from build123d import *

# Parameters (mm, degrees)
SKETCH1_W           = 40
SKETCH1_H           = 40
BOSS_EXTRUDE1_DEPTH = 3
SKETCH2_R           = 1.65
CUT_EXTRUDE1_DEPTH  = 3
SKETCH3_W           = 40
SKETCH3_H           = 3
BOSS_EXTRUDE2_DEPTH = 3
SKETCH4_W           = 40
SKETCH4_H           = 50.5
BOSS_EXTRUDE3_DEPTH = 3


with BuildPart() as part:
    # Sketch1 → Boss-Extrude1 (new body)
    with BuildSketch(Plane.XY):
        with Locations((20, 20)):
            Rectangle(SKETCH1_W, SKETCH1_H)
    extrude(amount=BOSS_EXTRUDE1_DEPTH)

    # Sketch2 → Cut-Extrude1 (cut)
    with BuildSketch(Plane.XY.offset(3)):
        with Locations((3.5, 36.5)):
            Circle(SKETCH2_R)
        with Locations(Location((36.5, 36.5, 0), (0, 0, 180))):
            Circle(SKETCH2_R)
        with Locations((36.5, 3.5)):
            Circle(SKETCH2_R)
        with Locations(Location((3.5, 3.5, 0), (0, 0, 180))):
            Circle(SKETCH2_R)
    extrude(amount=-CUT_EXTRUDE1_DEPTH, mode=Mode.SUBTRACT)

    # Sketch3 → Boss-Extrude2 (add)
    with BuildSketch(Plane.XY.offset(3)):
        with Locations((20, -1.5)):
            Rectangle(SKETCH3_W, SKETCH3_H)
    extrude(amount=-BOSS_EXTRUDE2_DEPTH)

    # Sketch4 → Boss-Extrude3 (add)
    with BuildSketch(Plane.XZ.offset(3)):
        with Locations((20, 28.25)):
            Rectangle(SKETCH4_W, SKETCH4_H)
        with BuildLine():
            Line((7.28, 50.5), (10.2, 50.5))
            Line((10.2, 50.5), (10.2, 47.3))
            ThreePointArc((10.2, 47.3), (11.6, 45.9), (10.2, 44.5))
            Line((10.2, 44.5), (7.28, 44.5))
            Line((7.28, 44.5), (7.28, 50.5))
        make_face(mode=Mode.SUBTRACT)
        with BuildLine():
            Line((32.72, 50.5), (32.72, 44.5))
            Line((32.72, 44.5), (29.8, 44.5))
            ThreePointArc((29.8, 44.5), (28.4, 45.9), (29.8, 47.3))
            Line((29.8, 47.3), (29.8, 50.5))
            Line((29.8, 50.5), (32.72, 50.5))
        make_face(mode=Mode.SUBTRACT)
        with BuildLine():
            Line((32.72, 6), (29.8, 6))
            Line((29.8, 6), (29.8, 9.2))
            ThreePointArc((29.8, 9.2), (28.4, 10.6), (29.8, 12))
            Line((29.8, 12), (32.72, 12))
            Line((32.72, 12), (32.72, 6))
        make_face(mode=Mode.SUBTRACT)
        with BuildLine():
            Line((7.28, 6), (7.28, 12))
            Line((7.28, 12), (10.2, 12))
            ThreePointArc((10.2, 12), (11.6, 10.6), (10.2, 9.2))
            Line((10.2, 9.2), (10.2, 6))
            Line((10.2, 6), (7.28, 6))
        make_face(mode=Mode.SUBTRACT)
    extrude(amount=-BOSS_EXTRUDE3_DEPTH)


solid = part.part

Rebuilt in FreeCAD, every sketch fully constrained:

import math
import FreeCAD as App
import Part
import Sketcher

V = App.Vector
Q = App.Units.Quantity

doc = App.newDocument("Part")
body = doc.addObject("PartDesign::Body", "Body")

# Sketch on XY plane
sketch1 = body.newObject("Sketcher::SketchObject", "Sketch")
sketch1.AttachmentSupport = (doc.getObject("XY_Plane"), [""])
sketch1.MapMode = "FlatFace"
sketch1.addGeometry(Part.LineSegment(V(0, 40, 0), V(0, 0, 0)), False)
sketch1.addGeometry(Part.LineSegment(V(0, 0, 0), V(40, 0, 0)), False)
sketch1.addGeometry(Part.LineSegment(V(40, 0, 0), V(40, 40, 0)), False)
sketch1.addGeometry(Part.LineSegment(V(40, 40, 0), V(0, 40, 0)), False)
sketch1.addConstraint(Sketcher.Constraint("Coincident", 0, 2, 1, 1))
sketch1.addConstraint(Sketcher.Constraint("Coincident", 1, 2, 2, 1))
sketch1.addConstraint(Sketcher.Constraint("Coincident", 2, 2, 3, 1))
sketch1.addConstraint(Sketcher.Constraint("Coincident", 3, 2, 0, 1))
sketch1.addConstraint(Sketcher.Constraint("Vertical", 0))
sketch1.addConstraint(Sketcher.Constraint("Horizontal", 1))
sketch1.addConstraint(Sketcher.Constraint("Vertical", 2))
sketch1.addConstraint(Sketcher.Constraint("Horizontal", 3))
sketch1.addConstraint(Sketcher.Constraint("Coincident", 0, 2, -1, 1))
sketch1.addConstraint(Sketcher.Constraint("Equal", 3, 0))
sketch1.addConstraint(Sketcher.Constraint("DistanceX", 1, 1, 1, 2, Q("40 mm")))
pad1 = body.newObject("PartDesign::Pad", "Pad")
pad1.Profile = sketch1
pad1.Length = 3

# Sketch on XY plane
sketch2 = body.newObject("Sketcher::SketchObject", "Sketch001")
sketch2.AttachmentSupport = (doc.getObject("XY_Plane"), [""])
sketch2.MapMode = "FlatFace"
sketch2.AttachmentOffset = App.Placement(V(0, 0, 3), App.Rotation())
sketch2.addGeometry(Part.Circle(V(3.5, 36.5, 0), V(0, 0, 1), 1.65), False)
sketch2.addGeometry(Part.Circle(V(36.5, 36.5, 0), V(0, 0, 1), 1.65), False)
sketch2.addGeometry(Part.Circle(V(36.5, 3.5, 0), V(0, 0, 1), 1.65), False)
sketch2.addGeometry(Part.Circle(V(3.5, 3.5, 0), V(0, 0, 1), 1.65), False)
sketch2.addConstraint(Sketcher.Constraint("Equal", 0, 1))
sketch2.addConstraint(Sketcher.Constraint("Equal", 1, 2))
sketch2.addConstraint(Sketcher.Constraint("Equal", 2, 3))
sketch2.addConstraint(Sketcher.Constraint("Horizontal", 0, 3, 1, 3))
sketch2.addConstraint(Sketcher.Constraint("Horizontal", 2, 3, 3, 3))
sketch2.addConstraint(Sketcher.Constraint("Vertical", 1, 3, 2, 3))
sketch2.addConstraint(Sketcher.Constraint("Vertical", 0, 3, 3, 3))
sketch2.addConstraint(Sketcher.Constraint("Diameter", 0, Q("3.3 mm")))
sketch2.addConstraint(Sketcher.Constraint("DistanceX", 0, 3, 1, 3, Q("33 mm")))
sketch2.addConstraint(Sketcher.Constraint("DistanceY", 2, 3, 1, 3, Q("33 mm")))
sketch2.addConstraint(Sketcher.Constraint("DistanceX", -1, 1, 0, 3, Q("3.5 mm")))
sketch2.addConstraint(Sketcher.Constraint("DistanceY", -1, 1, 0, 3, Q("36.5 mm")))
pocket1 = body.newObject("PartDesign::Pocket", "Pocket")
pocket1.Profile = sketch2
pocket1.Length = 3

# Sketch on XY plane
sketch3 = body.newObject("Sketcher::SketchObject", "Sketch002")
sketch3.AttachmentSupport = (doc.getObject("XY_Plane"), [""])
sketch3.MapMode = "FlatFace"
sketch3.AttachmentOffset = App.Placement(V(0, 0, 3), App.Rotation())
sketch3.addGeometry(Part.LineSegment(V(0, 0, 0), V(0, -3, 0)), False)
sketch3.addGeometry(Part.LineSegment(V(0, -3, 0), V(40, -3, 0)), False)
sketch3.addGeometry(Part.LineSegment(V(40, -3, 0), V(40, 0, 0)), False)
sketch3.addGeometry(Part.LineSegment(V(40, 0, 0), V(0, 0, 0)), False)
sketch3.addConstraint(Sketcher.Constraint("Coincident", 0, 2, 1, 1))
sketch3.addConstraint(Sketcher.Constraint("Coincident", 1, 2, 2, 1))
sketch3.addConstraint(Sketcher.Constraint("Coincident", 2, 2, 3, 1))
sketch3.addConstraint(Sketcher.Constraint("Coincident", 3, 2, 0, 1))
sketch3.addConstraint(Sketcher.Constraint("Vertical", 0))
sketch3.addConstraint(Sketcher.Constraint("Horizontal", 1))
sketch3.addConstraint(Sketcher.Constraint("Vertical", 2))
sketch3.addConstraint(Sketcher.Constraint("Horizontal", 3))
sketch3.addConstraint(Sketcher.Constraint("Coincident", 3, 2, -1, 1))
sketch3.addConstraint(Sketcher.Constraint("DistanceX", 1, 1, 1, 2, Q("40 mm")))
sketch3.addConstraint(Sketcher.Constraint("DistanceY", 0, 2, 0, 1, Q("3 mm")))
pad2 = body.newObject("PartDesign::Pad", "Pad001")
pad2.Profile = sketch3
pad2.Length = 3
pad2.Reversed = True

# Sketch on XZ plane
sketch4 = body.newObject("Sketcher::SketchObject", "Sketch003")
sketch4.AttachmentSupport = (doc.getObject("XZ_Plane"), [""])
sketch4.MapMode = "FlatFace"
sketch4.AttachmentOffset = App.Placement(V(0, 0, 3), App.Rotation())
sketch4.addGeometry(Part.LineSegment(V(0, 53.5, 0), V(0, 3, 0)), False)
sketch4.addGeometry(Part.LineSegment(V(0, 3, 0), V(40, 3, 0)), False)
sketch4.addGeometry(Part.LineSegment(V(40, 3, 0), V(40, 53.5, 0)), False)
sketch4.addGeometry(Part.LineSegment(V(40, 53.5, 0), V(0, 53.5, 0)), False)
sketch4.addGeometry(Part.LineSegment(V(10.2, 6, 0), V(7.28, 6, 0)), False)
sketch4.addGeometry(Part.LineSegment(V(7.28, 6, 0), V(7.28, 12, 0)), False)
sketch4.addGeometry(Part.LineSegment(V(7.28, 12, 0), V(10.2, 12, 0)), False)
sketch4.addGeometry(Part.ArcOfCircle(Part.Circle(V(10.2, 10.6, 0), V(0, 0, 1), 1.4), math.radians(-90), math.radians(90)), False)
sketch4.addGeometry(Part.LineSegment(V(10.2, 9.2, 0), V(10.2, 6, 0)), False)
sketch4.addGeometry(Part.LineSegment(V(32.72, 12, 0), V(32.72, 6, 0)), False)
sketch4.addGeometry(Part.LineSegment(V(32.72, 6, 0), V(29.8, 6, 0)), False)
sketch4.addGeometry(Part.LineSegment(V(29.8, 6, 0), V(29.8, 9.2, 0)), False)
sketch4.addGeometry(Part.ArcOfCircle(Part.Circle(V(29.8, 10.6, 0), V(0, 0, 1), 1.4), math.radians(90), math.radians(270)), False)
sketch4.addGeometry(Part.LineSegment(V(29.8, 12, 0), V(32.72, 12, 0)), False)
sketch4.addGeometry(Part.LineSegment(V(7.28, 44.5, 0), V(7.28, 50.5, 0)), False)
sketch4.addGeometry(Part.LineSegment(V(7.28, 50.5, 0), V(10.2, 50.5, 0)), False)
sketch4.addGeometry(Part.LineSegment(V(10.2, 50.5, 0), V(10.2, 47.3, 0)), False)
sketch4.addGeometry(Part.ArcOfCircle(Part.Circle(V(10.2, 45.9, 0), V(0, 0, 1), 1.4), math.radians(-90), math.radians(90)), False)
sketch4.addGeometry(Part.LineSegment(V(10.2, 44.5, 0), V(7.28, 44.5, 0)), False)
sketch4.addGeometry(Part.LineSegment(V(29.8, 50.5, 0), V(32.72, 50.5, 0)), False)
sketch4.addGeometry(Part.LineSegment(V(32.72, 50.5, 0), V(32.72, 44.5, 0)), False)
sketch4.addGeometry(Part.LineSegment(V(32.72, 44.5, 0), V(29.8, 44.5, 0)), False)
sketch4.addGeometry(Part.ArcOfCircle(Part.Circle(V(29.8, 45.9, 0), V(0, 0, 1), 1.4), math.radians(90), math.radians(270)), False)
sketch4.addGeometry(Part.LineSegment(V(29.8, 47.3, 0), V(29.8, 50.5, 0)), False)
sketch4.addConstraint(Sketcher.Constraint("Coincident", 0, 2, 1, 1))
sketch4.addConstraint(Sketcher.Constraint("Coincident", 1, 2, 2, 1))
sketch4.addConstraint(Sketcher.Constraint("Coincident", 2, 2, 3, 1))
sketch4.addConstraint(Sketcher.Constraint("Coincident", 3, 2, 0, 1))
sketch4.addConstraint(Sketcher.Constraint("Coincident", 4, 2, 5, 1))
sketch4.addConstraint(Sketcher.Constraint("Coincident", 5, 2, 6, 1))
sketch4.addConstraint(Sketcher.Constraint("Tangent", 6, 2, 7, 2))
sketch4.addConstraint(Sketcher.Constraint("Coincident", 7, 1, 8, 1))
sketch4.addConstraint(Sketcher.Constraint("Coincident", 8, 2, 4, 1))
sketch4.addConstraint(Sketcher.Constraint("Coincident", 9, 2, 10, 1))
sketch4.addConstraint(Sketcher.Constraint("Coincident", 10, 2, 11, 1))
sketch4.addConstraint(Sketcher.Constraint("Coincident", 11, 2, 12, 2))
sketch4.addConstraint(Sketcher.Constraint("Tangent", 12, 1, 13, 1))
sketch4.addConstraint(Sketcher.Constraint("Coincident", 13, 2, 9, 1))
sketch4.addConstraint(Sketcher.Constraint("Coincident", 14, 2, 15, 1))
sketch4.addConstraint(Sketcher.Constraint("Coincident", 15, 2, 16, 1))
sketch4.addConstraint(Sketcher.Constraint("Coincident", 16, 2, 17, 2))
sketch4.addConstraint(Sketcher.Constraint("Tangent", 17, 1, 18, 1))
sketch4.addConstraint(Sketcher.Constraint("Coincident", 18, 2, 14, 1))
sketch4.addConstraint(Sketcher.Constraint("Coincident", 19, 2, 20, 1))
sketch4.addConstraint(Sketcher.Constraint("Coincident", 20, 2, 21, 1))
sketch4.addConstraint(Sketcher.Constraint("Tangent", 21, 2, 22, 2))
sketch4.addConstraint(Sketcher.Constraint("Coincident", 22, 1, 23, 1))
sketch4.addConstraint(Sketcher.Constraint("Coincident", 23, 2, 19, 1))
sketch4.addConstraint(Sketcher.Constraint("Vertical", 0))
sketch4.addConstraint(Sketcher.Constraint("Horizontal", 1))
sketch4.addConstraint(Sketcher.Constraint("Vertical", 2))
sketch4.addConstraint(Sketcher.Constraint("Horizontal", 3))
sketch4.addConstraint(Sketcher.Constraint("Horizontal", 4))
sketch4.addConstraint(Sketcher.Constraint("Vertical", 5))
sketch4.addConstraint(Sketcher.Constraint("Horizontal", 6))
sketch4.addConstraint(Sketcher.Constraint("Vertical", 8))
sketch4.addConstraint(Sketcher.Constraint("Vertical", 9))
sketch4.addConstraint(Sketcher.Constraint("Horizontal", 10))
sketch4.addConstraint(Sketcher.Constraint("Vertical", 11))
sketch4.addConstraint(Sketcher.Constraint("Horizontal", 13))
sketch4.addConstraint(Sketcher.Constraint("Vertical", 14))
sketch4.addConstraint(Sketcher.Constraint("Horizontal", 15))
sketch4.addConstraint(Sketcher.Constraint("Vertical", 16))
sketch4.addConstraint(Sketcher.Constraint("Horizontal", 18))
sketch4.addConstraint(Sketcher.Constraint("Horizontal", 19))
sketch4.addConstraint(Sketcher.Constraint("Vertical", 20))
sketch4.addConstraint(Sketcher.Constraint("Horizontal", 21))
sketch4.addConstraint(Sketcher.Constraint("Vertical", 23))
sketch4.addConstraint(Sketcher.Constraint("Equal", 7, 12))
sketch4.addConstraint(Sketcher.Constraint("Equal", 12, 17))
sketch4.addConstraint(Sketcher.Constraint("Equal", 17, 22))
sketch4.addConstraint(Sketcher.Constraint("PointOnObject", 0, 2, -2))
sketch4.addConstraint(Sketcher.Constraint("Horizontal", 7, 3, 12, 3))
sketch4.addConstraint(Sketcher.Constraint("Horizontal", 17, 3, 22, 3))
sketch4.addConstraint(Sketcher.Constraint("Horizontal", 8, 2, 9, 2))
sketch4.addConstraint(Sketcher.Constraint("Horizontal", 15, 2, 19, 2))
sketch4.addConstraint(Sketcher.Constraint("Vertical", 7, 3, 17, 3))
sketch4.addConstraint(Sketcher.Constraint("Vertical", 12, 3, 22, 3))
sketch4.addConstraint(Sketcher.Constraint("Vertical", 6, 2, 7, 1))
sketch4.addConstraint(Sketcher.Constraint("Vertical", 22, 3, 10, 2))
sketch4.addConstraint(Sketcher.Constraint("Vertical", 5, 2, 14, 2))
sketch4.addConstraint(Sketcher.Constraint("Vertical", 8, 2, 15, 2))
sketch4.addConstraint(Sketcher.Constraint("Vertical", 13, 2, 19, 2))
sketch4.addConstraint(Sketcher.Constraint("Vertical", 21, 2, 22, 1))
sketch4.addConstraint(Sketcher.Constraint("Equal", 6, 10))
sketch4.addConstraint(Sketcher.Constraint("Equal", 9, 14))
sketch4.addConstraint(Sketcher.Constraint("Radius", 7, Q("1.4 mm")))
sketch4.addConstraint(Sketcher.Constraint("DistanceX", 1, 1, 1, 2, Q("40 mm")))
sketch4.addConstraint(Sketcher.Constraint("DistanceY", 5, 1, 5, 2, Q("6 mm")))
sketch4.addConstraint(Sketcher.Constraint("DistanceY", 0, 2, 0, 1, Q("50.5 mm")))
sketch4.addConstraint(Sketcher.Constraint("DistanceY", -1, 1, 0, 2, Q("3 mm")))
sketch4.addConstraint(Sketcher.Constraint("DistanceY", -1, 1, 4, 2, Q("6 mm")))
sketch4.addConstraint(Sketcher.Constraint("DistanceY", 14, 2, 3, 2, Q("3 mm")))
sketch4.addConstraint(Sketcher.Constraint("DistanceX", 4, 2, 4, 1, Q("2.92 mm")))
sketch4.addConstraint(Sketcher.Constraint("DistanceX", -1, 1, 7, 3, Q("10.2 mm")))
sketch4.addConstraint(Sketcher.Constraint("DistanceX", -1, 1, 12, 3, Q("29.8 mm")))
pad3 = body.newObject("PartDesign::Pad", "Pad002")
pad3.Profile = sketch4
pad3.Length = 3
pad3.Reversed = True

doc.recompute()
